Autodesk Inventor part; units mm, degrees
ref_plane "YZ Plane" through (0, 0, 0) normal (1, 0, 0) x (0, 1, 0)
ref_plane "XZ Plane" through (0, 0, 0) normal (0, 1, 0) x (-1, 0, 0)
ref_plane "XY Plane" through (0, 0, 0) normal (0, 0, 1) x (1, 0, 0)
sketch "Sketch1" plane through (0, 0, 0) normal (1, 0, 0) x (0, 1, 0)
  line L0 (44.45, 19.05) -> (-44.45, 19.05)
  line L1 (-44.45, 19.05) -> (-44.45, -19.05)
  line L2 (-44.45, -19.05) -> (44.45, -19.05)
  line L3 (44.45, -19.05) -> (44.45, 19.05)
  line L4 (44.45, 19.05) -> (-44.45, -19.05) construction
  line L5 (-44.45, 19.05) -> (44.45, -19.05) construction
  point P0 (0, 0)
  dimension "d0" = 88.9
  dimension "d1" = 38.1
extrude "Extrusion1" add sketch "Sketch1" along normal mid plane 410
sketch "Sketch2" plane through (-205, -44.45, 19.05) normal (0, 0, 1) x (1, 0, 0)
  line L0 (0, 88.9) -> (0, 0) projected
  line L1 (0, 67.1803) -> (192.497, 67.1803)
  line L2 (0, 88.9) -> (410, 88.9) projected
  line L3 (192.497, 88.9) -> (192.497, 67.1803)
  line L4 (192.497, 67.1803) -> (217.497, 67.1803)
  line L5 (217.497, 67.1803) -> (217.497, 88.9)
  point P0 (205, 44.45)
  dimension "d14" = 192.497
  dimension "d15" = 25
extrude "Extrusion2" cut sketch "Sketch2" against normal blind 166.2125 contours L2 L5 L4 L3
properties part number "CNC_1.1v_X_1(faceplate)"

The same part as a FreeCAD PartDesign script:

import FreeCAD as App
import Part
import Sketcher
Q = App.Units.Quantity

doc = App.newDocument("Part")
body = doc.addObject("PartDesign::Body", "Body")

sketch1 = body.newObject("Sketcher::SketchObject", "Sketch")
sketch1.AttachmentSupport = (doc.getObject("YZ_Plane"), [""])
sketch1.MapMode = "FlatFace"
sketch1.addGeometry([
    Part.LineSegment(App.Vector(44, -19, 0), App.Vector(44, 19, 0)),
    Part.LineSegment(App.Vector(44, 19, 0), App.Vector(-44, 19, 0)),
    Part.LineSegment(App.Vector(-44, 19, 0), App.Vector(-44, -19, 0)),
    Part.LineSegment(App.Vector(-44, -19, 0), App.Vector(44, -19, 0)),
], False)
sketch1.addConstraint([
    Sketcher.Constraint("Coincident", 0, 2, 1, 1),
    Sketcher.Constraint("Coincident", 1, 2, 2, 1),
    Sketcher.Constraint("Coincident", 2, 2, 3, 1),
    Sketcher.Constraint("Coincident", 3, 2, 0, 1),
    Sketcher.Constraint("Vertical", 0),
    Sketcher.Constraint("Horizontal", 1),
    Sketcher.Constraint("Vertical", 2),
    Sketcher.Constraint("Horizontal", 3),
    Sketcher.Constraint("Symmetric", 0, 2, 2, 2, -1, 1),
    Sketcher.Constraint("DistanceX", 1, 2, 1, 1, Q("88.9 mm")),
    Sketcher.Constraint("DistanceY", 0, 1, 0, 2, Q("38.1 mm")),
])
pad1 = body.newObject("PartDesign::Pad", "Pad")
pad1.Profile = sketch1
pad1.Length = 410
pad1.Midplane = True

sketch2 = body.newObject("Sketcher::SketchObject", "Sketch001")
sketch2.AttachmentSupport = (doc.getObject("XY_Plane"), [""])
sketch2.MapMode = "FlatFace"
sketch2.AttachmentOffset = App.Placement(App.Vector(0, 0, 19.05), App.Rotation())
sketch2.addGeometry([
    Part.LineSegment(App.Vector(12, 44, 0), App.Vector(-13, 44, 0)),
    Part.LineSegment(App.Vector(-13, 44, 0), App.Vector(-13, 23, 0)),
    Part.LineSegment(App.Vector(-13, 23, 0), App.Vector(12, 23, 0)),
    Part.LineSegment(App.Vector(12, 23, 0), App.Vector(12, 44, 0)),
], False)
sketch2.addConstraint([
    Sketcher.Constraint("Coincident", 0, 2, 1, 1),
    Sketcher.Constraint("Coincident", 1, 2, 2, 1),
    Sketcher.Constraint("Coincident", 2, 2, 3, 1),
    Sketcher.Constraint("Coincident", 3, 2, 0, 1),
    Sketcher.Constraint("Horizontal", 0),
    Sketcher.Constraint("Vertical", 1),
    Sketcher.Constraint("Horizontal", 2),
    Sketcher.Constraint("Vertical", 3),
    Sketcher.Constraint("DistanceX", 0, 2, 0, 1, Q("25 mm")),
    Sketcher.Constraint("DistanceY", -1, 1, 0, 2, Q("44.45 mm")),
    Sketcher.Constraint("DistanceY", 1, 2, 1, 1, Q("21.7197 mm")),
    Sketcher.Constraint("DistanceX", 0, 2, -1, 1, Q("12.503 mm")),
])
pocket1 = body.newObject("PartDesign::Pocket", "Pocket")
pocket1.Profile = sketch2
pocket1.Length = 166.2125

doc.recompute()
